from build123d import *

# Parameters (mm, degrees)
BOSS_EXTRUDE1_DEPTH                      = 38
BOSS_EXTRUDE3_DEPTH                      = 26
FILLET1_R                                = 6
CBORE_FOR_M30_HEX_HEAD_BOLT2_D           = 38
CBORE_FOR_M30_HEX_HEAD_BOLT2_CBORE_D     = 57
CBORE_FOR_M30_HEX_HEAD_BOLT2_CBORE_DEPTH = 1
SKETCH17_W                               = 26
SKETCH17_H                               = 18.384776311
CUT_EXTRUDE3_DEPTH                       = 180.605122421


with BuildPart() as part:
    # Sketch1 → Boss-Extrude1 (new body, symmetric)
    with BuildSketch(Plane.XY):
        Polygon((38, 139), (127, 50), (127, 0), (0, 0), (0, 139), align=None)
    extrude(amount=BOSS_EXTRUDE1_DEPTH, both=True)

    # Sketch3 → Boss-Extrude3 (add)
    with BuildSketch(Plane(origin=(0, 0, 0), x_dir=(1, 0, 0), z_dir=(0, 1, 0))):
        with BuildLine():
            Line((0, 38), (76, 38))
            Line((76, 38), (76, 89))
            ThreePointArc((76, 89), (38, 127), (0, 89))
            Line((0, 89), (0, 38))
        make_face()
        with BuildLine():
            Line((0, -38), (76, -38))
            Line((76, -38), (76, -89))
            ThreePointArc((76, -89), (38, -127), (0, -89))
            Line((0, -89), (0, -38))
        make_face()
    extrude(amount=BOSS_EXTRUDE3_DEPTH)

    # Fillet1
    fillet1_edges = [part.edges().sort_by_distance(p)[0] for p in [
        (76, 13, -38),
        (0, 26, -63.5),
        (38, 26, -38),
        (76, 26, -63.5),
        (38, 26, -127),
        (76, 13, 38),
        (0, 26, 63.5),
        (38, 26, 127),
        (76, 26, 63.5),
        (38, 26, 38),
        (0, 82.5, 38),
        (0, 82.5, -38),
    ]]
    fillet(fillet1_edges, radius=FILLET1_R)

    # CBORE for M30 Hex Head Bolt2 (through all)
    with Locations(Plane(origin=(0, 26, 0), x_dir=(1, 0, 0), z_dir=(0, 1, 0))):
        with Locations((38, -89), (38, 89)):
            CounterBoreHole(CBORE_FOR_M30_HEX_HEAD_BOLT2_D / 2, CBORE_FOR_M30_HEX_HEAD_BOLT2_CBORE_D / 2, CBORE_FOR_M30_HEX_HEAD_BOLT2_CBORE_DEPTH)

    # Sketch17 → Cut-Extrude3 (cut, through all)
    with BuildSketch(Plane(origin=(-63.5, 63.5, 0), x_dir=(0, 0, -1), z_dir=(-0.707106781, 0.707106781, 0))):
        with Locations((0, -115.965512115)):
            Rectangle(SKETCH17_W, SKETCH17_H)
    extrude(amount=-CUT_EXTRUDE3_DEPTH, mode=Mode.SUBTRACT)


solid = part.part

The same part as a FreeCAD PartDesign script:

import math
import FreeCAD as App
import Part
import Sketcher
from FreeCAD import Vector
Q = App.Units.Quantity


def edges_at(feature, points):
    """Names of the edges that pass closest to the given points."""
    edges = feature.Shape.Edges
    near = lambda p: min(range(len(edges)), key=lambda i: edges[i].distToShape(Part.Vertex(*p))[0])
    return sorted({f"Edge{near(p) + 1}" for p in points})


def add_polygon(sketch, points):
    """Adds a closed chain of lines whose ends are joined by coincident constraints."""
    first, n = sketch.GeometryCount, len(points)
    for a, b in zip(points, points[1:] + points[:1]):
        sketch.addGeometry(Part.LineSegment(App.Vector(*a, 0), App.Vector(*b, 0)), False)
    for i in range(n):
        sketch.addConstraint(Sketcher.Constraint("Coincident", first + i, 2, first + (i + 1) % n, 1))

doc = App.newDocument("Part")
body = doc.addObject("PartDesign::Body", "Body")

sketch1 = body.newObject("Sketcher::SketchObject", "Sketch")
sketch1.AttachmentSupport = (doc.getObject("XY_Plane"), [""])
sketch1.MapMode = "FlatFace"
add_polygon(sketch1, [(127, 50), (38, 139), (0, 139), (0, 0), (127, 0)])
sketch1.addConstraint(Sketcher.Constraint("Horizontal", 1))
sketch1.addConstraint(Sketcher.Constraint("Vertical", 2))
sketch1.addConstraint(Sketcher.Constraint("Horizontal", 3))
sketch1.addConstraint(Sketcher.Constraint("Vertical", 4))
sketch1.addConstraint(Sketcher.Constraint("Coincident", 2, 2, -1, 1))
sketch1.addConstraint(Sketcher.Constraint("DistanceX", 1, 2, 1, 1, Q("38 mm")))
sketch1.addConstraint(Sketcher.Constraint("DistanceX", 3, 1, 3, 2, Q("127 mm")))
sketch1.addConstraint(Sketcher.Constraint("DistanceY", 2, 2, 2, 1, Q("139 mm")))
sketch1.addConstraint(Sketcher.Constraint("DistanceY", 4, 1, 4, 2, Q("50 mm")))
pad1 = body.newObject("PartDesign::Pad", "Pad")
pad1.Profile = sketch1
pad1.Length = 76
pad1.Midplane = True

sketch2 = body.newObject("Sketcher::SketchObject", "Sketch001")
sketch2.AttachmentSupport = (doc.getObject("XZ_Plane"), [""])
sketch2.MapMode = "FlatFace"
sketch2.addGeometry(Part.LineSegment(Vector(0, -38, 0), Vector(76, -38, 0)), False)
sketch2.addGeometry(Part.LineSegment(Vector(76, -38, 0), Vector(76, -89, 0)), False)
sketch2.addGeometry(Part.ArcOfCircle(Part.Circle(Vector(38, -89, 0), Vector(0, 0, 1), 38), math.radians(180), math.radians(360)), False)
sketch2.addGeometry(Part.LineSegment(Vector(0, -89, 0), Vector(0, -38, 0)), False)
sketch2.addGeometry(Part.LineSegment(Vector(76, 38, 0), Vector(0, 38, 0)), False)
sketch2.addGeometry(Part.LineSegment(Vector(0, 38, 0), Vector(0, 89, 0)), False)
sketch2.addGeometry(Part.ArcOfCircle(Part.Circle(Vector(38, 89, 0), Vector(0, 0, 1), 38), math.radians(0), math.radians(180)), False)
sketch2.addGeometry(Part.LineSegment(Vector(76, 89, 0), Vector(76, 38, 0)), False)
sketch2.addConstraint(Sketcher.Constraint("Coincident", 0, 2, 1, 1))
sketch2.addConstraint(Sketcher.Constraint("Tangent", 1, 2, 2, 2))
sketch2.addConstraint(Sketcher.Constraint("Tangent", 2, 1, 3, 1))
sketch2.addConstraint(Sketcher.Constraint("Coincident", 3, 2, 0, 1))
sketch2.addConstraint(Sketcher.Constraint("Coincident", 4, 2, 5, 1))
sketch2.addConstraint(Sketcher.Constraint("Tangent", 5, 2, 6, 2))
sketch2.addConstraint(Sketcher.Constraint("Tangent", 6, 1, 7, 1))
sketch2.addConstraint(Sketcher.Constraint("Coincident", 7, 2, 4, 1))
sketch2.addConstraint(Sketcher.Constraint("Horizontal", 0))
sketch2.addConstraint(Sketcher.Constraint("Vertical", 1))
sketch2.addConstraint(Sketcher.Constraint("Vertical", 3))
sketch2.addConstraint(Sketcher.Constraint("Horizontal", 4))
sketch2.addConstraint(Sketcher.Constraint("Vertical", 5))
sketch2.addConstraint(Sketcher.Constraint("Vertical", 7))
sketch2.addConstraint(Sketcher.Constraint("Equal", 2, 6))
sketch2.addConstraint(Sketcher.Constraint("Symmetric", 3, 2, 4, 2, -1, 1))
sketch2.addConstraint(Sketcher.Constraint("Symmetric", 2, 3, 6, 3, -1))
sketch2.addConstraint(Sketcher.Constraint("Radius", 2, Q("38 mm")))
sketch2.addConstraint(Sketcher.Constraint("DistanceY", 1, 2, 1, 1, Q("51 mm")))
sketch2.addConstraint(Sketcher.Constraint("DistanceY", 2, 3, -1, 1, Q("89 mm")))
pad2 = body.newObject("PartDesign::Pad", "Pad001")
pad2.Profile = sketch2
pad2.Length = 26
pad2.Reversed = True
doc.recompute()

fillet = body.newObject("PartDesign::Fillet", "Fillet")
fillet.Base = (pad2, edges_at(pad2, [
    (76, 13, -38),
    (0, 26, -63.5),
    (38, 26, -38),
    (76, 26, -63.5),
    (38, 26, -127),
    (76, 13, 38),
    (0, 26, 63.5),
    (38, 26, 127),
    (76, 26, 63.5),
    (38, 26, 38),
    (0, 82.5, 38),
    (0, 82.5, -38),
]))
fillet.Radius = 6

sketch3 = body.newObject("Sketcher::SketchObject", "Sketch002")
sketch3.AttachmentSupport = (doc.getObject("XZ_Plane"), [""])
sketch3.MapMode = "FlatFace"
sketch3.AttachmentOffset = App.Placement(Vector(0, 0, -26), App.Rotation())
sketch3.addGeometry(Part.Circle(Vector(38, 89, 0), Vector(0, 0, 1), 19), False)
sketch3.addGeometry(Part.Circle(Vector(38, -89, 0), Vector(0, 0, 1), 19), False)
sketch3.addConstraint(Sketcher.Constraint("Equal", 0, 1))
sketch3.addConstraint(Sketcher.Constraint("Symmetric", 0, 3, 1, 3, -1))
sketch3.addConstraint(Sketcher.Constraint("Diameter", 0, Q("38 mm")))
sketch3.addConstraint(Sketcher.Constraint("DistanceX", -1, 1, 0, 3, Q("38 mm")))
sketch3.addConstraint(Sketcher.Constraint("DistanceY", -1, 1, 0, 3, Q("89 mm")))
doc.recompute()
hole = body.newObject("PartDesign::Hole", "Hole")
hole.Profile = sketch3
hole.ThreadType = "None"
hole.Diameter = 38
hole.DepthType = "ThroughAll"
hole.HoleCutType = "Counterbore"
hole.HoleCutDiameter = 57
hole.HoleCutDepth = 1
hole.Reversed = True

sketch4 = body.newObject("Sketcher::SketchObject", "Sketch003")
sketch4.Placement = App.Placement(Vector(-63.5, 63.5, 0), App.Rotation(Vector(0, 0, -1), Vector(-0.707106781, -0.707106781, 0), Vector(-0.707106781, 0.707106781, 0), "ZXY"))
add_polygon(sketch4, [(-13, -107), (-13, -125), (13, -125), (13, -107)])
sketch4.addConstraint(Sketcher.Constraint("Vertical", 0))
sketch4.addConstraint(Sketcher.Constraint("Horizontal", 1))
sketch4.addConstraint(Sketcher.Constraint("Vertical", 2))
sketch4.addConstraint(Sketcher.Constraint("Horizontal", 3))
sketch4.addConstraint(Sketcher.Constraint("DistanceX", 1, 1, 1, 2, Q("26 mm")))
sketch4.addConstraint(Sketcher.Constraint("DistanceX", 0, 2, -1, 1, Q("13 mm")))
sketch4.addConstraint(Sketcher.Constraint("DistanceY", 0, 2, -1, 1, Q("125.1579 mm")))
sketch4.addConstraint(Sketcher.Constraint("DistanceY", 0, 2, 0, 1, Q("18.384776 mm")))
pocket1 = body.newObject("PartDesign::Pocket", "Pocket")
pocket1.Profile = sketch4
pocket1.Type = "ThroughAll"

doc.recompute()
